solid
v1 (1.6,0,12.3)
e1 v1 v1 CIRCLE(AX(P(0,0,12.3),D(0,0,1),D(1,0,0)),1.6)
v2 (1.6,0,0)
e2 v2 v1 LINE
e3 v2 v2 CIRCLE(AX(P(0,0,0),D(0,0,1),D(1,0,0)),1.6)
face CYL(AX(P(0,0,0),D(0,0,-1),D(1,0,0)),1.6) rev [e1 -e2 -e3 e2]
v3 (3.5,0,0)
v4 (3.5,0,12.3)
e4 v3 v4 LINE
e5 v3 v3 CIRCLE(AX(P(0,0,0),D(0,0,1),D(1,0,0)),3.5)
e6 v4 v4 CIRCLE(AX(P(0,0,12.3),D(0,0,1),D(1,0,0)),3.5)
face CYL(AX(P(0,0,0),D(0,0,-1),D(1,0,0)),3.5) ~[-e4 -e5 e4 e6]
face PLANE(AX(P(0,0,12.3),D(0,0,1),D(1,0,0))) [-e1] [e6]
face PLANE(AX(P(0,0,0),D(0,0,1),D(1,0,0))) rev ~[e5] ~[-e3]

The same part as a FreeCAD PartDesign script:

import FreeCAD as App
import Part
import Sketcher

V = App.Vector
Q = App.Units.Quantity

doc = App.newDocument("Part")
params = doc.addObject("Spreadsheet::Sheet", "Params")
for row, (alias, value) in enumerate([
    ("sketch1_diameter", "7 mm"),
    ("sketch1_diameter2", "3.2 mm"),
    ("pad1_length", "12.3 mm"),
], start=1):
    params.set(f"A{row}", alias)
    params.set(f"B{row}", "=" + value)
    params.setAlias(f"B{row}", alias)

body = doc.addObject("PartDesign::Body", "Body")

# Sketch on XY plane
sketch1 = doc.addObject("Sketcher::SketchObject", "Sketch")
body.addObject(sketch1)
sketch1.AttachmentSupport = (doc.XY_Plane, [""])
sketch1.MapMode = "FlatFace"
sketch1.addGeometry(Part.Circle(V(0, 0, 0), V(0, 0, 1), 3.5), False)
sketch1.addGeometry(Part.Circle(V(0, 0, 0), V(0, 0, 1), 1.6), False)
sketch1.addConstraint(Sketcher.Constraint("Coincident", 0, 3, -1, 1))
sketch1.addConstraint(Sketcher.Constraint("Coincident", 1, 3, -1, 1))
sketch1.addConstraint(Sketcher.Constraint("Diameter", 0, Q("7 mm")))
sketch1.addConstraint(Sketcher.Constraint("Diameter", 1, Q("3.2 mm")))
sketch1.setExpression("Constraints[2]", "Params.sketch1_diameter")
sketch1.setExpression("Constraints[3]", "Params.sketch1_diameter2")
pad1 = doc.addObject("PartDesign::Pad", "Pad")
body.addObject(pad1)
pad1.Profile = sketch1
pad1.setExpression("Length", "Params.pad1_length")

doc.recompute()
